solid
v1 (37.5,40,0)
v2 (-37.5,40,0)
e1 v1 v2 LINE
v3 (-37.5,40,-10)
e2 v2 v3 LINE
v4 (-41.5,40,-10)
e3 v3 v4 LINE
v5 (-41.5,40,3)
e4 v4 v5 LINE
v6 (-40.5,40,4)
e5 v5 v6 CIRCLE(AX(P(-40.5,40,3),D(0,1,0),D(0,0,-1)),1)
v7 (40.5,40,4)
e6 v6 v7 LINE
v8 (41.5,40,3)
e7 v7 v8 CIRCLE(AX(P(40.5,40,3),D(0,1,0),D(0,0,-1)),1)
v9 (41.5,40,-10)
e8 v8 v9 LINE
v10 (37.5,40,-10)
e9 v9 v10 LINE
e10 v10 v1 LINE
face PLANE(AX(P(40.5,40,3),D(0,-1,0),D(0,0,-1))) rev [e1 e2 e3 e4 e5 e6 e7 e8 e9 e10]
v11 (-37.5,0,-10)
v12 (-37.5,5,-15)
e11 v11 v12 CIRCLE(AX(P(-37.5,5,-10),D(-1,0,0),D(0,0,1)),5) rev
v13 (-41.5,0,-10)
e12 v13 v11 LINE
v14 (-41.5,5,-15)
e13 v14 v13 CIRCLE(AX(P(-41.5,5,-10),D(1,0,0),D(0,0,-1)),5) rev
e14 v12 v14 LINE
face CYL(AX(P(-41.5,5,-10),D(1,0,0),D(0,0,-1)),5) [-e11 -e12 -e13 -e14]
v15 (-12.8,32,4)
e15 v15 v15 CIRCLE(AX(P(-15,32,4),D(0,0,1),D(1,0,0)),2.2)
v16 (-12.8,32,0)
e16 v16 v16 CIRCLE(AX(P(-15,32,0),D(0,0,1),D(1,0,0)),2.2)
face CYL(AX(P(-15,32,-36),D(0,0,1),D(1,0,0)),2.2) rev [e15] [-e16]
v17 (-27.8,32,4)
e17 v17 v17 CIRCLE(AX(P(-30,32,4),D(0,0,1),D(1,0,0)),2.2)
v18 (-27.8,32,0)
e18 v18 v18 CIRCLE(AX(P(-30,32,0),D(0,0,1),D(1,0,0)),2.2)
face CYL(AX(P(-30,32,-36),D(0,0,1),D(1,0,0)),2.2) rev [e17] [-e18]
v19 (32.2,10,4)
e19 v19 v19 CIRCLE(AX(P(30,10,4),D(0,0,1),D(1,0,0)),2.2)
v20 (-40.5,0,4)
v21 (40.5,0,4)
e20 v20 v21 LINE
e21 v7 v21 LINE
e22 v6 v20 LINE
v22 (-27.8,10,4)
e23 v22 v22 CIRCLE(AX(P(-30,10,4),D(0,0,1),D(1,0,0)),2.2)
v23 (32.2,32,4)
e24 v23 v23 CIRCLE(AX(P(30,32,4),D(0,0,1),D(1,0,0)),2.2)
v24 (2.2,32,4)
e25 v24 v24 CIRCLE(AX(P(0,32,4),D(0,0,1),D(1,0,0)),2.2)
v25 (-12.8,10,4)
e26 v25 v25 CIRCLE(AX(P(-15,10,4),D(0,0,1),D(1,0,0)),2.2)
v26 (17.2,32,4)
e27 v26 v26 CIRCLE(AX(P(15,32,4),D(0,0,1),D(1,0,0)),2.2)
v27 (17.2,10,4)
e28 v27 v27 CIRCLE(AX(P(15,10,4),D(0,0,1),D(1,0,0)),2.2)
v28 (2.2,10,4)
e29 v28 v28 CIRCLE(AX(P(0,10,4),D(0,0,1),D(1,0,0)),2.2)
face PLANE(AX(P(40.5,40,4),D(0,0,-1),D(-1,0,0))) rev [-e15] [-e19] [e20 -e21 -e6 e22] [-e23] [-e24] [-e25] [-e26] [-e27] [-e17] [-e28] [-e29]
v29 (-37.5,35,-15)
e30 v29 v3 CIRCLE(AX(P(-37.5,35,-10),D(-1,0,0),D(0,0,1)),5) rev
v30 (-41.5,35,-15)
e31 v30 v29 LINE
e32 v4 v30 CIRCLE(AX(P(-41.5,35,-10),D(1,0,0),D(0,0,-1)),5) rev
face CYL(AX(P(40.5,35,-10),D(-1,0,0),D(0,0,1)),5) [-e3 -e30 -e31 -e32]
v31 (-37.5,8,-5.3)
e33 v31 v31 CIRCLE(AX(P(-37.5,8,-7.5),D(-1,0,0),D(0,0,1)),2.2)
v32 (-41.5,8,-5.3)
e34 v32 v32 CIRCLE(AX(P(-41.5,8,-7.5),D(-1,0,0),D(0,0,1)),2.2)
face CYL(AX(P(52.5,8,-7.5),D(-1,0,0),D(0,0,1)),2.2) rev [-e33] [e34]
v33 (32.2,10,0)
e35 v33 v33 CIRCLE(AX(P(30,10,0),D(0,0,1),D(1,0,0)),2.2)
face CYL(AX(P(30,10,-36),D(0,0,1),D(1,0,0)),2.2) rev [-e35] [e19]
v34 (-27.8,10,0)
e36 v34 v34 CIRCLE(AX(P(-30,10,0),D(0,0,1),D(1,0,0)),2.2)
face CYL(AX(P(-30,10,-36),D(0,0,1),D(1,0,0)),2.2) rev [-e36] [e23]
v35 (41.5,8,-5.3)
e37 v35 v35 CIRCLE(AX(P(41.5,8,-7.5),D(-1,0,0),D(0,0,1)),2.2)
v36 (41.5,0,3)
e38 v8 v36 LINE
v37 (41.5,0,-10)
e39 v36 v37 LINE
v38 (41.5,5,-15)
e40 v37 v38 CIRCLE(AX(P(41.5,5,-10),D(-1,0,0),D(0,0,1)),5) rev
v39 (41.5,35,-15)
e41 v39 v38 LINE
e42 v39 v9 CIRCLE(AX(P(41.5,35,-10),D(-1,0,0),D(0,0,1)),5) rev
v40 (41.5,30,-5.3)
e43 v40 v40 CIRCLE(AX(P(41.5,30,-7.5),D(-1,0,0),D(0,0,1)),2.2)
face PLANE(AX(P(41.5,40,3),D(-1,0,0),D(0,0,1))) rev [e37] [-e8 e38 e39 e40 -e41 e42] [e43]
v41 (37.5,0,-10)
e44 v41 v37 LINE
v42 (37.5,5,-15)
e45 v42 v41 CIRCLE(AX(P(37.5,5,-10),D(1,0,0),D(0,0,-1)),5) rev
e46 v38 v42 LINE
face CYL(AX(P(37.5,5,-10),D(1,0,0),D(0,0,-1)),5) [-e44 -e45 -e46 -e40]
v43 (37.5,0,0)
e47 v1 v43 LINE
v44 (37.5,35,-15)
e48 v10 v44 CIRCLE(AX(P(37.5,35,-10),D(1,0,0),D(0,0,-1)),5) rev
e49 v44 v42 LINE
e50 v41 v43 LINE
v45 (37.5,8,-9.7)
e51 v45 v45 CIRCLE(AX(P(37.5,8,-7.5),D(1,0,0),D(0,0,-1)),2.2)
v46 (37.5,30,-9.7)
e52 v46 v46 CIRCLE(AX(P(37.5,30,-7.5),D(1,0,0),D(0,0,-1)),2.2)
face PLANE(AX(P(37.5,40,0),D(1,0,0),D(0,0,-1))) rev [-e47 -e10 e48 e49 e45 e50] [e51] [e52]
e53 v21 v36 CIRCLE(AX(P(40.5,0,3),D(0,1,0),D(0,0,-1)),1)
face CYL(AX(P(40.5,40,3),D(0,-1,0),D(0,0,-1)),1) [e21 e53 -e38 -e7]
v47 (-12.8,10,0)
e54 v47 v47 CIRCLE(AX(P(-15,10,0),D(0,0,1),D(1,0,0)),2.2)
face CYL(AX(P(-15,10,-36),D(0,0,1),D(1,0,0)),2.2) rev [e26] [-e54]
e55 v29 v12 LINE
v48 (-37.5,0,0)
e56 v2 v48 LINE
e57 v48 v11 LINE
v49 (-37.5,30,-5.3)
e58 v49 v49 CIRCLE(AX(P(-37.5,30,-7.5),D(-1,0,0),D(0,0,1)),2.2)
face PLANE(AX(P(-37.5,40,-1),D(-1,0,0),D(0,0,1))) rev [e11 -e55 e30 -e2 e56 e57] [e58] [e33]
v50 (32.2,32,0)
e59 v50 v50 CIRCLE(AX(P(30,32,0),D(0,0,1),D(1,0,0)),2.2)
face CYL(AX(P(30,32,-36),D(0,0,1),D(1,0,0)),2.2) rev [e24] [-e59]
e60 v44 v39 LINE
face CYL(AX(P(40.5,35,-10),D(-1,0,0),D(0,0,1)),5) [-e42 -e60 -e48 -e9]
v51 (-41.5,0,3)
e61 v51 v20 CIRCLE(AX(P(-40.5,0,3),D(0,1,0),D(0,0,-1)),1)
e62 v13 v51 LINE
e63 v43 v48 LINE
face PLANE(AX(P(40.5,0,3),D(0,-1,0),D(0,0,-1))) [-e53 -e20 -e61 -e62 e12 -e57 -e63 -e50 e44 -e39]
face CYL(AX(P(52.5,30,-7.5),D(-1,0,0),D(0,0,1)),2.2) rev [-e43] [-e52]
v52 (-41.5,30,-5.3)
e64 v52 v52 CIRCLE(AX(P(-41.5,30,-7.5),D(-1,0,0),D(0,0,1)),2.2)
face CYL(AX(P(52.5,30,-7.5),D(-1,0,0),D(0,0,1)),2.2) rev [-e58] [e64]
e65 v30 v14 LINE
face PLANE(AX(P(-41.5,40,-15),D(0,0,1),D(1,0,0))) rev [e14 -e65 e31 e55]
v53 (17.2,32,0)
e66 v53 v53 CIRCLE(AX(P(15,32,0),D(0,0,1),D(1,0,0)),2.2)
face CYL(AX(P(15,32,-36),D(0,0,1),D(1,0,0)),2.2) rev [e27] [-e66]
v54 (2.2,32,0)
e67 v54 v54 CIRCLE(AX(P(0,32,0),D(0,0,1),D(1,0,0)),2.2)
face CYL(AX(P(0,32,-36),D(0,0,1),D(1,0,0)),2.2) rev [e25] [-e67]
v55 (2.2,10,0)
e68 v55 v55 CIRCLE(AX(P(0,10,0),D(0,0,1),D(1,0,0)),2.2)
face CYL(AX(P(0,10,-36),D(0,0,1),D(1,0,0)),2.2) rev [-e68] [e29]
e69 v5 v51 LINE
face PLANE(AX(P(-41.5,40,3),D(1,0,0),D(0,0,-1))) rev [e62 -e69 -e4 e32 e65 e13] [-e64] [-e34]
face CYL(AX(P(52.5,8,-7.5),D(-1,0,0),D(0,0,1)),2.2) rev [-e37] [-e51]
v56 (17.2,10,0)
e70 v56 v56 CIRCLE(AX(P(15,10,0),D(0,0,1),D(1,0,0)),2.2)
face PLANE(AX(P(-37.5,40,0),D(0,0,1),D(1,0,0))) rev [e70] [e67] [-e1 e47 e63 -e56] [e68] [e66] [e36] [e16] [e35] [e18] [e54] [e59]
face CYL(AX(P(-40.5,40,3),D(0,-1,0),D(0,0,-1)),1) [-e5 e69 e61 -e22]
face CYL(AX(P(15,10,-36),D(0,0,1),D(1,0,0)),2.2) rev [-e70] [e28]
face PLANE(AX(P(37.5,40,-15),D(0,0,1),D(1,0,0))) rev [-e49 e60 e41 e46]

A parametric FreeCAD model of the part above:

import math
import FreeCAD as App
import Part
import Sketcher

V = App.Vector


def edges_at(feature, points):
    """Names of the edges that pass closest to the given points."""
    edges = feature.Shape.Edges
    near = lambda p: min(range(len(edges)), key=lambda i: edges[i].distToShape(Part.Vertex(*p))[0])
    return sorted({f"Edge{near(p) + 1}" for p in points})

doc = App.newDocument("Part")
body = doc.addObject("PartDesign::Body", "Body")

sketch1 = body.newObject("Sketcher::SketchObject", "Sketch")
sketch1.AttachmentSupport = (doc.getObject("XZ_Plane"), [""])
sketch1.MapMode = "FlatFace"
sketch1.addGeometry([
    Part.LineSegment(V(-37.5, 0, 0), V(-37.5, -15, 0)),
    Part.LineSegment(V(-37.5, -15, 0), V(-41.5, -15, 0)),
    Part.LineSegment(V(-41.5, -15, 0), V(-41.5, 3, 0)),
    Part.ArcOfCircle(Part.Circle(V(-40.5, 3, 0), V(0, 0, 1), 1), math.radians(90), math.radians(180)),
    Part.LineSegment(V(-40.5, 4, 0), V(40.5, 4, 0)),
    Part.ArcOfCircle(Part.Circle(V(40.5, 3, 0), V(0, 0, 1), 1), math.radians(0), math.radians(90)),
    Part.LineSegment(V(41.5, 3, 0), V(41.5, -15, 0)),
    Part.LineSegment(V(41.5, -15, 0), V(37.5, -15, 0)),
    Part.LineSegment(V(37.5, -15, 0), V(37.5, 0, 0)),
    Part.LineSegment(V(37.5, 0, 0), V(-37.5, 0, 0)),
], False)
sketch1.addConstraint([
    Sketcher.Constraint("Coincident", 0, 2, 1, 1),
    Sketcher.Constraint("Coincident", 1, 2, 2, 1),
    Sketcher.Constraint("Tangent", 2, 2, 3, 2),
    Sketcher.Constraint("Tangent", 3, 1, 4, 1),
    Sketcher.Constraint("Tangent", 4, 2, 5, 2),
    Sketcher.Constraint("Tangent", 5, 1, 6, 1),
    Sketcher.Constraint("Coincident", 6, 2, 7, 1),
    Sketcher.Constraint("Coincident", 7, 2, 8, 1),
    Sketcher.Constraint("Coincident", 8, 2, 9, 1),
    Sketcher.Constraint("Coincident", 9, 2, 0, 1),
    Sketcher.Constraint("Vertical", 0),
    Sketcher.Constraint("Horizontal", 1),
    Sketcher.Constraint("Vertical", 2),
    Sketcher.Constraint("Horizontal", 4),
    Sketcher.Constraint("Vertical", 6),
    Sketcher.Constraint("Horizontal", 7),
    Sketcher.Constraint("Vertical", 8),
    Sketcher.Constraint("Horizontal", 9),
    Sketcher.Constraint("Equal", 3, 5),
    Sketcher.Constraint("Symmetric", 8, 2, 9, 2, -1, 1),
    Sketcher.Constraint("Symmetric", 1, 2, 6, 2, -2),
    Sketcher.Constraint("Radius", 3, 1.0),
    Sketcher.Constraint("DistanceX", 1, 2, 1, 1, 4.0),
    Sketcher.Constraint("DistanceX", 4, 1, 4, 2, 81.0),
    Sketcher.Constraint("DistanceY", 0, 2, 0, 1, 15.0),
    Sketcher.Constraint("DistanceY", 2, 1, 2, 2, 18.0),
])
pad1 = body.newObject("PartDesign::Pad", "Pad")
pad1.Profile = sketch1
pad1.Length = 40
pad1.Reversed = True
doc.recompute()

fillet = body.newObject("PartDesign::Fillet", "Fillet")
fillet.Base = (pad1, edges_at(pad1, [
    (39.5, 0, -15),
    (-39.5, 0, -15),
    (39.5, 40, -15),
    (-39.5, 40, -15),
]))
fillet.Radius = 5

sketch2 = body.newObject("Sketcher::SketchObject", "Sketch001")
sketch2.AttachmentSupport = (doc.getObject("XY_Plane"), [""])
sketch2.MapMode = "FlatFace"
sketch2.AttachmentOffset = App.Placement(V(0, 0, 4), App.Rotation())
sketch2.addGeometry([
    Part.Circle(V(-30, 32, 0), V(0, 0, 1), 2.2),
    Part.Circle(V(-15, 32, 0), V(0, 0, 1), 2.2),
    Part.Circle(V(0, 32, 0), V(0, 0, 1), 2.2),
    Part.Circle(V(15, 32, 0), V(0, 0, 1), 2.2),
    Part.Circle(V(30, 32, 0), V(0, 0, 1), 2.2),
    Part.Circle(V(-30, 10, 0), V(0, 0, 1), 2.2),
    Part.Circle(V(-15, 10, 0), V(0, 0, 1), 2.2),
    Part.Circle(V(0, 10, 0), V(0, 0, 1), 2.2),
    Part.Circle(V(15, 10, 0), V(0, 0, 1), 2.2),
    Part.Circle(V(30, 10, 0), V(0, 0, 1), 2.2),
], False)
sketch2.addConstraint([
    Sketcher.Constraint("Equal", 0, 1),
    Sketcher.Constraint("Equal", 1, 2),
    Sketcher.Constraint("Equal", 2, 3),
    Sketcher.Constraint("Equal", 3, 4),
    Sketcher.Constraint("Equal", 4, 5),
    Sketcher.Constraint("Equal", 5, 6),
    Sketcher.Constraint("Equal", 6, 7),
    Sketcher.Constraint("Equal", 7, 8),
    Sketcher.Constraint("Equal", 8, 9),
    Sketcher.Constraint("Symmetric", 1, 3, 3, 3, -2),
    Sketcher.Constraint("Symmetric", 0, 3, 4, 3, -2),
    Sketcher.Constraint("Symmetric", 6, 3, 8, 3, -2),
    Sketcher.Constraint("Symmetric", 5, 3, 9, 3, -2),
    Sketcher.Constraint("PointOnObject", 2, 3, -2),
    Sketcher.Constraint("PointOnObject", 7, 3, -2),
    Sketcher.Constraint("Horizontal", 0, 3, 1, 3),
    Sketcher.Constraint("Horizontal", 1, 3, 2, 3),
    Sketcher.Constraint("Horizontal", 5, 3, 6, 3),
    Sketcher.Constraint("Horizontal", 6, 3, 7, 3),
    Sketcher.Constraint("Vertical", 0, 3, 5, 3),
    Sketcher.Constraint("Vertical", 1, 3, 6, 3),
    Sketcher.Constraint("Diameter", 0, 4.4),
    Sketcher.Constraint("DistanceX", 0, 3, -1, 1, 30.0),
    Sketcher.Constraint("DistanceY", -1, 1, 0, 3, 32.0),
    Sketcher.Constraint("DistanceX", 1, 3, -1, 1, 15.0),
    Sketcher.Constraint("DistanceY", -1, 1, 5, 3, 10.0),
])
pocket1 = body.newObject("PartDesign::Pocket", "Pocket")
pocket1.Profile = sketch2
pocket1.Length = 40

sketch3 = body.newObject("Sketcher::SketchObject", "Sketch002")
sketch3.AttachmentSupport = (doc.getObject("YZ_Plane"), [""])
sketch3.MapMode = "FlatFace"
sketch3.AttachmentOffset = App.Placement(V(0, 0, -41.5), App.Rotation())
sketch3.addGeometry([
    Part.Circle(V(30, -7.5, 0), V(0, 0, 1), 2.2),
    Part.Circle(V(8, -7.5, 0), V(0, 0, 1), 2.2),
], False)
sketch3.addConstraint([
    Sketcher.Constraint("Equal", 0, 1),
    Sketcher.Constraint("Horizontal", 0, 3, 1, 3),
    Sketcher.Constraint("Diameter", 0, 4.4),
    Sketcher.Constraint("DistanceX", -1, 1, 0, 3, 30.0),
    Sketcher.Constraint("DistanceX", -1, 1, 1, 3, 8.0),
    Sketcher.Constraint("DistanceY", 0, 3, -1, 1, 7.5),
])
pocket2 = body.newObject("PartDesign::Pocket", "Pocket001")
pocket2.Profile = sketch3
pocket2.Length = 94
pocket2.Reversed = True

doc.recompute()
